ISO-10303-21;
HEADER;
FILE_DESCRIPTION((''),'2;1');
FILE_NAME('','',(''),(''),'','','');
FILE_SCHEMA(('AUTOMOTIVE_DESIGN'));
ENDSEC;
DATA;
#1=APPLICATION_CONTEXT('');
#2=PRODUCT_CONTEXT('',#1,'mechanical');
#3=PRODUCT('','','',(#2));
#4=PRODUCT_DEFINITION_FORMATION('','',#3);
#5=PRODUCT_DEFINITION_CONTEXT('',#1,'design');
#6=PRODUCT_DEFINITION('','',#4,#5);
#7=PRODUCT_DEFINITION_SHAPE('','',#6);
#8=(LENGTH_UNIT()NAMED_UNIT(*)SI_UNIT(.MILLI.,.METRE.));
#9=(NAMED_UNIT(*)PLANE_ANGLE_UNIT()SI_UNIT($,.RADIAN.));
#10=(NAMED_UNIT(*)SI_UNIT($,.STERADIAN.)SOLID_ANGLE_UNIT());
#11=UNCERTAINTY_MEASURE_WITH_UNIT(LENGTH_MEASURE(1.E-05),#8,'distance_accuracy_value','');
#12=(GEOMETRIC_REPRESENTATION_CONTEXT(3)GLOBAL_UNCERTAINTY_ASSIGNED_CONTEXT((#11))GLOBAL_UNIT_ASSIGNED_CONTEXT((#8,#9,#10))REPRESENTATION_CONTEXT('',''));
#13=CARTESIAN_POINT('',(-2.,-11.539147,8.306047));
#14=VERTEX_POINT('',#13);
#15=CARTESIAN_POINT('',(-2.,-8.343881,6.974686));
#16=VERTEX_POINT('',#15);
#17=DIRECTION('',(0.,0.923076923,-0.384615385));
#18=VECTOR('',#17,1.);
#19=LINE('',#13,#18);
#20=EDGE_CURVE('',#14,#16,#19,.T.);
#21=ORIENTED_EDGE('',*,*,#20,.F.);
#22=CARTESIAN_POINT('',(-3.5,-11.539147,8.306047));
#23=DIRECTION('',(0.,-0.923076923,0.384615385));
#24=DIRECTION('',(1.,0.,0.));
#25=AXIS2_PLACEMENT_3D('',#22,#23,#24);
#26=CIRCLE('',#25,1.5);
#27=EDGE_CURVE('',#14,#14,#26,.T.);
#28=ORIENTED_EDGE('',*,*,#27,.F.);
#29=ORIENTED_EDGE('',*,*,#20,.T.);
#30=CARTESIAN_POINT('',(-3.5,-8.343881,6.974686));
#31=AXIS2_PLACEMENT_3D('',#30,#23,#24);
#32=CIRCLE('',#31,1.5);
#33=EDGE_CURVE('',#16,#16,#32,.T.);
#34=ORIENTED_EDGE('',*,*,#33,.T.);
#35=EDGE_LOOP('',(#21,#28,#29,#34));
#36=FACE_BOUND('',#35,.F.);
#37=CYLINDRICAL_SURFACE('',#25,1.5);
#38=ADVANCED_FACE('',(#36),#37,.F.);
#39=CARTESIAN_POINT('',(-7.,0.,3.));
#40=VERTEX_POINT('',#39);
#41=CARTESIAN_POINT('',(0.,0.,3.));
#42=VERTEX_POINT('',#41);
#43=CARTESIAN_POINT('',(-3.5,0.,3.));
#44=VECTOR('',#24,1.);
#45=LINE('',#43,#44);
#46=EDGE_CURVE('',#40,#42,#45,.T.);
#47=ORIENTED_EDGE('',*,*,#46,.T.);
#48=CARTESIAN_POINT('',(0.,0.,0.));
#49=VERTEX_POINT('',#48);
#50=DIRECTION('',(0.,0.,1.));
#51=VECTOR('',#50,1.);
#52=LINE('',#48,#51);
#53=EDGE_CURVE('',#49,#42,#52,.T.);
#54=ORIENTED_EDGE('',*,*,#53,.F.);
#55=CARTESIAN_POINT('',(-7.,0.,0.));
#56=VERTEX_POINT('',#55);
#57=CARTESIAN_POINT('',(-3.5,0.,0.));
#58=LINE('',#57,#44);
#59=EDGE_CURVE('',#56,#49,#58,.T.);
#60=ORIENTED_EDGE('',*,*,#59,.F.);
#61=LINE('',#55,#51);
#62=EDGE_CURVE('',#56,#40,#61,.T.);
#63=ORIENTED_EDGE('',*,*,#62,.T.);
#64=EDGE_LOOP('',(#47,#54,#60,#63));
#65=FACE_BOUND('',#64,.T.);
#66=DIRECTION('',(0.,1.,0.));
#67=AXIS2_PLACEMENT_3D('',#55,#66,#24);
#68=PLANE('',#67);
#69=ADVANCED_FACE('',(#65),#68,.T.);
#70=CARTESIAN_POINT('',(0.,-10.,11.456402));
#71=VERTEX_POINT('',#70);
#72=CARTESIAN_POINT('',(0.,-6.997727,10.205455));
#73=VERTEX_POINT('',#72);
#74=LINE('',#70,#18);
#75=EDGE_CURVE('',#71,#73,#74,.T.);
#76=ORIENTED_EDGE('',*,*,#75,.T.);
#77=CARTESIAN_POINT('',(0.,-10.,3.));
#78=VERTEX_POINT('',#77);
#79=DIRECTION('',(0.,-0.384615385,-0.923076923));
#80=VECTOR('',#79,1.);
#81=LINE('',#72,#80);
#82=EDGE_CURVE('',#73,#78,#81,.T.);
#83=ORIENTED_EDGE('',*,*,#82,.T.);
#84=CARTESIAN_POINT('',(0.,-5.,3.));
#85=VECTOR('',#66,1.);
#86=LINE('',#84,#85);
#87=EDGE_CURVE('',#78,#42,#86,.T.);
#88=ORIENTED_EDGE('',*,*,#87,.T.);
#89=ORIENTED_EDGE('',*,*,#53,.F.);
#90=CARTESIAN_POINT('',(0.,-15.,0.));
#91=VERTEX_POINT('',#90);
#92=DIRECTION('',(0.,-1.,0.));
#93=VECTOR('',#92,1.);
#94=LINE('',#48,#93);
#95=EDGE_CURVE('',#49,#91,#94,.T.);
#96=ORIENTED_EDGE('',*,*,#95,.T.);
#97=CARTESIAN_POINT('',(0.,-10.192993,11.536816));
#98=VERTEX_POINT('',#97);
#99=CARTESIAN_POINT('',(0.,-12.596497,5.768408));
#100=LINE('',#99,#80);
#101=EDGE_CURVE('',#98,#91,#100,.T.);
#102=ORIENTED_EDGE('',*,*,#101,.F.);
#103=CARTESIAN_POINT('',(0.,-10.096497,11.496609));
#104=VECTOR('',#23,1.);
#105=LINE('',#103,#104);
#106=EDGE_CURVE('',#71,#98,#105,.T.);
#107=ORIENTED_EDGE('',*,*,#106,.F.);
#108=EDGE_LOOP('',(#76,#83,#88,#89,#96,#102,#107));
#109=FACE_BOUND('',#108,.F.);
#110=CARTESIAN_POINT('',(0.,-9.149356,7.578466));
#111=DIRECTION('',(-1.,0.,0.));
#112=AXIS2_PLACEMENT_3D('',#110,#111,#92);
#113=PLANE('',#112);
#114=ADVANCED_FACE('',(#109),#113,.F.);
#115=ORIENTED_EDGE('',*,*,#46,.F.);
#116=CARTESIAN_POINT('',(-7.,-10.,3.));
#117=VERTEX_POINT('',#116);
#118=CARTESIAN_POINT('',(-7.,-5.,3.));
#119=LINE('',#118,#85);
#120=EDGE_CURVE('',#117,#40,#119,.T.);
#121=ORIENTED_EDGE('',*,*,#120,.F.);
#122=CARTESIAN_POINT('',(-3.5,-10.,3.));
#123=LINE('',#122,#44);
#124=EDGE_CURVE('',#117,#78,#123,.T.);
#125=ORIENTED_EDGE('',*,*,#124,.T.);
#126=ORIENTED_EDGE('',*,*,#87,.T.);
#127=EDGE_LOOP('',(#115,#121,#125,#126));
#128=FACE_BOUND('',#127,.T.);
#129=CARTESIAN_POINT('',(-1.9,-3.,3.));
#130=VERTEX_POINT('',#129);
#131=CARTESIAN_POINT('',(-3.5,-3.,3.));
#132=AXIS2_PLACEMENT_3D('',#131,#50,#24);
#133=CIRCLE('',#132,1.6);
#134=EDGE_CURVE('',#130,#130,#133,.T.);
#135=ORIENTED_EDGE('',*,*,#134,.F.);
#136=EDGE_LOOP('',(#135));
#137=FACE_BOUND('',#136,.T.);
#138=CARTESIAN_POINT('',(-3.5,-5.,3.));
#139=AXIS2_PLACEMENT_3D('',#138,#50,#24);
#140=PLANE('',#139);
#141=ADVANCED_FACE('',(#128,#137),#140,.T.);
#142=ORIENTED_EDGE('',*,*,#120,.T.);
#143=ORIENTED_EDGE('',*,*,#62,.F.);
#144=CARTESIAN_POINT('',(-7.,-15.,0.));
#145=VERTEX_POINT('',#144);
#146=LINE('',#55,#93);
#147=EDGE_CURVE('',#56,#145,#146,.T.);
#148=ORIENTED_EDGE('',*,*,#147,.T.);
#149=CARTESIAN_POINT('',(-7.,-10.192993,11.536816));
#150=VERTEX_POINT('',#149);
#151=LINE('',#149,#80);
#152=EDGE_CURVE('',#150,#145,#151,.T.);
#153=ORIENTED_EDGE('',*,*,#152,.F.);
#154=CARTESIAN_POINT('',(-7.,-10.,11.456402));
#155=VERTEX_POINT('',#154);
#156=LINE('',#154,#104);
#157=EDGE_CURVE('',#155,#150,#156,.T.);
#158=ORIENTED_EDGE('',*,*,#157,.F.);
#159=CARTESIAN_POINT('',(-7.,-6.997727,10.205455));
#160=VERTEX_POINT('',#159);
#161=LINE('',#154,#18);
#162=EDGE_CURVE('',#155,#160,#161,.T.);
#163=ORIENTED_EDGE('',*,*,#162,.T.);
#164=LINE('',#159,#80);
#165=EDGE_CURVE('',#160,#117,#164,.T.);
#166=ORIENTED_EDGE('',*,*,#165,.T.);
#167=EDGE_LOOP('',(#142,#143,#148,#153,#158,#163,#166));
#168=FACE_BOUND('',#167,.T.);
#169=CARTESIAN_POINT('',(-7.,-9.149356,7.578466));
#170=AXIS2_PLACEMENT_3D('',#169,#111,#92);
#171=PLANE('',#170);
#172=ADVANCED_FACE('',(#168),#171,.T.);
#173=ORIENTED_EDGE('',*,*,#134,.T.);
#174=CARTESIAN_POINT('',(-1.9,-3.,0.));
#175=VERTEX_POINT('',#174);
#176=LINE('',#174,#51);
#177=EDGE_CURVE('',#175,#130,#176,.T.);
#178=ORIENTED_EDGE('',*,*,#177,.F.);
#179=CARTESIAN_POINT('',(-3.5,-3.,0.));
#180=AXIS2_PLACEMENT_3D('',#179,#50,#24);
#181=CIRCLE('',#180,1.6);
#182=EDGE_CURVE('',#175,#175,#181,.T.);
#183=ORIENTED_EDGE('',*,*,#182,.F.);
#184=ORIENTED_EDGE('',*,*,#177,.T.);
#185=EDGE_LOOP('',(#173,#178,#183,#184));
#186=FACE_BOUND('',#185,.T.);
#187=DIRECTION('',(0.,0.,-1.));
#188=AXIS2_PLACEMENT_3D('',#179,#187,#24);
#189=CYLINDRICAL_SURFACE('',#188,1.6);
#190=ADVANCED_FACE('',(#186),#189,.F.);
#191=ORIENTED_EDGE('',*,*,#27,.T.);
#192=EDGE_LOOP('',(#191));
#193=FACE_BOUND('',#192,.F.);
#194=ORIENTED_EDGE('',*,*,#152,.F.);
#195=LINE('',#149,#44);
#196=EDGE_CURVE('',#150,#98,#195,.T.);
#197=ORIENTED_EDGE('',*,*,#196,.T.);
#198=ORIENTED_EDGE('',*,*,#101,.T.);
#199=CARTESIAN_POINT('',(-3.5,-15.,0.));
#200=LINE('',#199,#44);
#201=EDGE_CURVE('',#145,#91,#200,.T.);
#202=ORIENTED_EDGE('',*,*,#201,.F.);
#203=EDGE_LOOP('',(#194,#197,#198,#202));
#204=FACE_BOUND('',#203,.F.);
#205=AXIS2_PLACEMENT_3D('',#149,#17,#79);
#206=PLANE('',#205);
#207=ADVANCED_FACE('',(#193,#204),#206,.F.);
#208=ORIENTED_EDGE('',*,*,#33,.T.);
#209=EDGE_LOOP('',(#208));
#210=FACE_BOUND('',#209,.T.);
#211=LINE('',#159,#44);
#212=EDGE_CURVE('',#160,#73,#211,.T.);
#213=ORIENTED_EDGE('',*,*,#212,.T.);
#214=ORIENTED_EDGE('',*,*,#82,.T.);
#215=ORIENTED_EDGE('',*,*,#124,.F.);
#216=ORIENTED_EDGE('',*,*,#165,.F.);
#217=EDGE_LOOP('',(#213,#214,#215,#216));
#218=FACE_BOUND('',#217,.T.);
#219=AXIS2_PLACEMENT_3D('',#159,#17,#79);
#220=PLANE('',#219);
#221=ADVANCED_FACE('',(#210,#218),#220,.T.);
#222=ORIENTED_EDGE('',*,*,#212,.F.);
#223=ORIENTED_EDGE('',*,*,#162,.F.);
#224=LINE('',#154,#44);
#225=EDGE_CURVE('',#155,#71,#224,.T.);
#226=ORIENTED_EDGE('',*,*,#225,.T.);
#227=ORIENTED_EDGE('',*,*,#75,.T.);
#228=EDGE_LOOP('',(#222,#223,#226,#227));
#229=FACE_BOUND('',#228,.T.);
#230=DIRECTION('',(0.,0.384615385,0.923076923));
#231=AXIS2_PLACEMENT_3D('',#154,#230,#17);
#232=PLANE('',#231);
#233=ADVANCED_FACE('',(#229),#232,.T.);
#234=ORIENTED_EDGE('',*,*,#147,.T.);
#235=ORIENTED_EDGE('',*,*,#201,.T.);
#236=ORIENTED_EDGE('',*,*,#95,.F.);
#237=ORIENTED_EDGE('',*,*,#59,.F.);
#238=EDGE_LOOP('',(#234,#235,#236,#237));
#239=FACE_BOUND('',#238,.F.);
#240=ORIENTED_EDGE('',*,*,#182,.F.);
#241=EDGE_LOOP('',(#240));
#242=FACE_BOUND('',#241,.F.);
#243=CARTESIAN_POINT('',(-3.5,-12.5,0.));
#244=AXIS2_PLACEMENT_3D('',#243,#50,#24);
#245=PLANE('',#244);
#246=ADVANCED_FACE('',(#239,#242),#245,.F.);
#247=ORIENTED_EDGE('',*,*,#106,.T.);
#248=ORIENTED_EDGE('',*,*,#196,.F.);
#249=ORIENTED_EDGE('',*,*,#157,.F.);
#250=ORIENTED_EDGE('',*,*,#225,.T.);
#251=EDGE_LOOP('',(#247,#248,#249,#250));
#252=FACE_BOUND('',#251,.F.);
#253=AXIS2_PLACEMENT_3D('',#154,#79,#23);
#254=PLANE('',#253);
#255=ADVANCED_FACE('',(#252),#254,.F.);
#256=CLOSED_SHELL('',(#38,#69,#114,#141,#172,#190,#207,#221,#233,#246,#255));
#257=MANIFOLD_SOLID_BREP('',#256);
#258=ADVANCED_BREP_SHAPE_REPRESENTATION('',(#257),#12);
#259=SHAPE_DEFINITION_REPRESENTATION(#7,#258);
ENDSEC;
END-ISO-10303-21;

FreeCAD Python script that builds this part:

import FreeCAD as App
import Part
import Sketcher

V = App.Vector


def add_polygon(sketch, points):
    """Adds a closed chain of lines whose ends are joined by coincident constraints."""
    first, n = sketch.GeometryCount, len(points)
    for a, b in zip(points, points[1:] + points[:1]):
        sketch.addGeometry(Part.LineSegment(App.Vector(*a, 0), App.Vector(*b, 0)), False)
    for i in range(n):
        sketch.addConstraint(Sketcher.Constraint("Coincident", first + i, 2, first + (i + 1) % n, 1))

doc = App.newDocument("Part")
body = doc.addObject("PartDesign::Body", "Body")

sketch1 = body.newObject("Sketcher::SketchObject", "Sketch")
sketch1.AttachmentSupport = (doc.getObject("XY_Plane"), [""])
sketch1.MapMode = "FlatFace"
add_polygon(sketch1, [(-7, 0), (-7, -10), (0, -10), (0, 0)])
sketch1.addGeometry(Part.Circle(V(-3.5, -3, 0), V(0, 0, 1), 1.6), False)
sketch1.addConstraint([
    Sketcher.Constraint("Vertical", 0),
    Sketcher.Constraint("Horizontal", 1),
    Sketcher.Constraint("Vertical", 2),
    Sketcher.Constraint("Horizontal", 3),
    Sketcher.Constraint("Coincident", 2, 2, -1, 1),
    Sketcher.Constraint("Diameter", 4, 3.2),
    Sketcher.Constraint("DistanceX", 1, 1, 1, 2, 7.0),
    Sketcher.Constraint("DistanceY", 0, 2, 0, 1, 10.0),
    Sketcher.Constraint("DistanceY", 4, 3, -1, 1, 3.0),
    Sketcher.Constraint("DistanceX", 4, 3, -1, 1, 3.5),
])
pad1 = body.newObject("PartDesign::Pad", "Pad")
pad1.Profile = sketch1
pad1.Length = 3

sketch2 = body.newObject("Sketcher::SketchObject", "Sketch001")
sketch2.AttachmentSupport = (doc.getObject("XY_Plane"), [""])
sketch2.MapMode = "FlatFace"
add_polygon(sketch2, [(-7, -10), (-7, -15), (0, -15), (0, -10)])
sketch2.addConstraint([
    Sketcher.Constraint("Vertical", 0),
    Sketcher.Constraint("Horizontal", 1),
    Sketcher.Constraint("Vertical", 2),
    Sketcher.Constraint("Horizontal", 3),
    Sketcher.Constraint("PointOnObject", 1, 2, -2),
    Sketcher.Constraint("DistanceX", 1, 1, 1, 2, 7.0),
    Sketcher.Constraint("DistanceY", 0, 2, 0, 1, 5.0),
    Sketcher.Constraint("DistanceY", 0, 2, -1, 1, 15.0),
])
pad2 = body.newObject("PartDesign::Pad", "Pad001")
pad2.Profile = sketch2
pad2.Length = 12

sketch3 = body.newObject("Sketcher::SketchObject", "Sketch002")
sketch3.AttachmentSupport = (doc.getObject("YZ_Plane"), [""])
sketch3.MapMode = "FlatFace"
sketch3.AttachmentOffset = App.Placement(V(0, 0, -7), App.Rotation())
add_polygon(sketch3, [(-10.19, 11.54), (-15, 0), (-15, 12), (-10, 12), (-10, 11.46)])
sketch3.addConstraint([
    Sketcher.Constraint("Vertical", 1),
    Sketcher.Constraint("Horizontal", 2),
    Sketcher.Constraint("Vertical", 3),
    Sketcher.Constraint("PointOnObject", 0, 2, -1),
    Sketcher.Constraint("Perpendicular", 0, 4),
    Sketcher.Constraint("DistanceX", 2, 1, 2, 2, 5.0),
    Sketcher.Constraint("DistanceY", 1, 1, 1, 2, 12.0),
    Sketcher.Constraint("DistanceX", 0, 2, -1, 1, 15.0),
    Sketcher.Constraint("DistanceY", 3, 2, 3, 1, 0.543598),
    Sketcher.Constraint("Distance", 0, 12.498217),
])
pocket1 = body.newObject("PartDesign::Pocket", "Pocket")
pocket1.Profile = sketch3
pocket1.Length = 25
pocket1.Reversed = True

sketch4 = body.newObject("Sketcher::SketchObject", "Sketch003")
sketch4.AttachmentSupport = (doc.getObject("YZ_Plane"), [""])
sketch4.MapMode = "FlatFace"
sketch4.AttachmentOffset = App.Placement(V(0, 0, -7), App.Rotation())
add_polygon(sketch4, [(-10, 3), (-10, 11.5), (-7, 10.2)])
sketch4.addConstraint([
    Sketcher.Constraint("Vertical", 0),
    Sketcher.Constraint("Perpendicular", 1, 2),
    Sketcher.Constraint("DistanceX", 0, 2, -1, 1, 10.0),
    Sketcher.Constraint("DistanceY", -1, 1, 2, 2, 3.0),
    Sketcher.Constraint("Distance", 2, 7.80591),
    Sketcher.Constraint("DistanceY", 0, 1, 0, 2, 8.456402),
])
pad3 = body.newObject("PartDesign::Pad", "Pad002")
pad3.Profile = sketch4
pad3.Length = 7

sketch5 = body.newObject("Sketcher::SketchObject", "Sketch004")
sketch5.Placement = App.Placement(V(0, -12.781065, 5.325444), App.Rotation(V(1, 0, 0), V(0, 0.384615385, 0.923076923), V(0, -0.923076923, 0.384615385), "ZXY"))
sketch5.addGeometry(Part.Circle(V(-3.5, 3.2, 0), V(0, 0, 1), 1.5), False)
sketch5.addConstraint([
    Sketcher.Constraint("Diameter", 0, 3.0),
    Sketcher.Constraint("DistanceX", 0, 3, -1, 1, 3.5),
    Sketcher.Constraint("DistanceY", -1, 1, 0, 3, 3.228986),
])
pocket2 = body.newObject("PartDesign::Pocket", "Pocket001")
pocket2.Profile = sketch5
pocket2.Length = 10

doc.recompute()
